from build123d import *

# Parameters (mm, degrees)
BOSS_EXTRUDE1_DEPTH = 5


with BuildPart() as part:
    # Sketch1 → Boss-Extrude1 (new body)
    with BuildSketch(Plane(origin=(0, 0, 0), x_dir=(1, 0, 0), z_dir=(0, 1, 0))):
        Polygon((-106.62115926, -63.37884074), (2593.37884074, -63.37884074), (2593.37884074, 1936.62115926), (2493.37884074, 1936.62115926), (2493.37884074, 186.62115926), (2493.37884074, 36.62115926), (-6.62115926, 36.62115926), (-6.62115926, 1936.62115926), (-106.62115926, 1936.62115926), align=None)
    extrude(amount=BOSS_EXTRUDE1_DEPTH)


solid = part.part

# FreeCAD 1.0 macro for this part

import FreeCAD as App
import Part
import Sketcher

doc = App.newDocument("Part")
body = doc.addObject("PartDesign::Body", "Body")

# Sketch on XZ plane
sketch1 = doc.addObject("Sketcher::SketchObject", "Sketch")
body.addObject(sketch1)
sketch1.AttachmentSupport = (doc.XZ_Plane, [""])
sketch1.MapMode = "FlatFace"
sketch1.addGeometry([
    Part.LineSegment(App.Vector(-106.621159, 63.378841, 0), App.Vector(2593.378841, 63.378841, 0)),  # 0
    Part.LineSegment(App.Vector(2593.378841, 63.378841, 0), App.Vector(2593.378841, -1936.621159, 0)),  # 1
    Part.LineSegment(App.Vector(2593.378841, -1936.621159, 0), App.Vector(2493.378841, -1936.621159, 0)),  # 2
    Part.LineSegment(App.Vector(2493.378841, -1936.621159, 0), App.Vector(2493.378841, -36.621159, 0)),  # 3
    Part.LineSegment(App.Vector(2493.378841, -36.621159, 0), App.Vector(-6.621159, -36.621159, 0)),  # 4
    Part.LineSegment(App.Vector(-6.621159, -36.621159, 0), App.Vector(-6.621159, -1936.621159, 0)),  # 5
    Part.LineSegment(App.Vector(-6.621159, -1936.621159, 0), App.Vector(-106.621159, -1936.621159, 0)),  # 6
    Part.LineSegment(App.Vector(-106.621159, -1936.621159, 0), App.Vector(-106.621159, 63.378841, 0)),  # 7
], False)
sketch1.addConstraint([
    Sketcher.Constraint("Coincident", 0, 2, 1, 1),
    Sketcher.Constraint("Coincident", 1, 2, 2, 1),
    Sketcher.Constraint("Coincident", 2, 2, 3, 1),
    Sketcher.Constraint("Coincident", 3, 2, 4, 1),
    Sketcher.Constraint("Coincident", 4, 2, 5, 1),
    Sketcher.Constraint("Coincident", 5, 2, 6, 1),
    Sketcher.Constraint("Coincident", 6, 2, 7, 1),
    Sketcher.Constraint("Coincident", 7, 2, 0, 1),
    Sketcher.Constraint("Horizontal", 0),
    Sketcher.Constraint("Vertical", 1),
    Sketcher.Constraint("Horizontal", 2),
    Sketcher.Constraint("Vertical", 3),
    Sketcher.Constraint("Horizontal", 4),
    Sketcher.Constraint("Vertical", 5),
    Sketcher.Constraint("Horizontal", 6),
    Sketcher.Constraint("Vertical", 7),
    Sketcher.Constraint("Horizontal", 2, 2, 5, 2),
    Sketcher.Constraint("Equal", 2, 6),
    Sketcher.Constraint("DistanceX", 0, 1, 0, 2, 2700.0),
    Sketcher.Constraint("DistanceX", 2, 2, 2, 1, 100.0),
    Sketcher.Constraint("DistanceY", 1, 2, 1, 1, 2000.0),
    Sketcher.Constraint("DistanceY", 3, 1, 3, 2, 1900.0),
    Sketcher.Constraint("DistanceX", -1, 1, 0, 2, 2593.378841),
    Sketcher.Constraint("DistanceY", -1, 1, 0, 2, 63.378841),
])
pad1 = doc.addObject("PartDesign::Pad", "Pad")
body.addObject(pad1)
pad1.Profile = sketch1
pad1.Length = 5
pad1.Reversed = True

doc.recompute()
